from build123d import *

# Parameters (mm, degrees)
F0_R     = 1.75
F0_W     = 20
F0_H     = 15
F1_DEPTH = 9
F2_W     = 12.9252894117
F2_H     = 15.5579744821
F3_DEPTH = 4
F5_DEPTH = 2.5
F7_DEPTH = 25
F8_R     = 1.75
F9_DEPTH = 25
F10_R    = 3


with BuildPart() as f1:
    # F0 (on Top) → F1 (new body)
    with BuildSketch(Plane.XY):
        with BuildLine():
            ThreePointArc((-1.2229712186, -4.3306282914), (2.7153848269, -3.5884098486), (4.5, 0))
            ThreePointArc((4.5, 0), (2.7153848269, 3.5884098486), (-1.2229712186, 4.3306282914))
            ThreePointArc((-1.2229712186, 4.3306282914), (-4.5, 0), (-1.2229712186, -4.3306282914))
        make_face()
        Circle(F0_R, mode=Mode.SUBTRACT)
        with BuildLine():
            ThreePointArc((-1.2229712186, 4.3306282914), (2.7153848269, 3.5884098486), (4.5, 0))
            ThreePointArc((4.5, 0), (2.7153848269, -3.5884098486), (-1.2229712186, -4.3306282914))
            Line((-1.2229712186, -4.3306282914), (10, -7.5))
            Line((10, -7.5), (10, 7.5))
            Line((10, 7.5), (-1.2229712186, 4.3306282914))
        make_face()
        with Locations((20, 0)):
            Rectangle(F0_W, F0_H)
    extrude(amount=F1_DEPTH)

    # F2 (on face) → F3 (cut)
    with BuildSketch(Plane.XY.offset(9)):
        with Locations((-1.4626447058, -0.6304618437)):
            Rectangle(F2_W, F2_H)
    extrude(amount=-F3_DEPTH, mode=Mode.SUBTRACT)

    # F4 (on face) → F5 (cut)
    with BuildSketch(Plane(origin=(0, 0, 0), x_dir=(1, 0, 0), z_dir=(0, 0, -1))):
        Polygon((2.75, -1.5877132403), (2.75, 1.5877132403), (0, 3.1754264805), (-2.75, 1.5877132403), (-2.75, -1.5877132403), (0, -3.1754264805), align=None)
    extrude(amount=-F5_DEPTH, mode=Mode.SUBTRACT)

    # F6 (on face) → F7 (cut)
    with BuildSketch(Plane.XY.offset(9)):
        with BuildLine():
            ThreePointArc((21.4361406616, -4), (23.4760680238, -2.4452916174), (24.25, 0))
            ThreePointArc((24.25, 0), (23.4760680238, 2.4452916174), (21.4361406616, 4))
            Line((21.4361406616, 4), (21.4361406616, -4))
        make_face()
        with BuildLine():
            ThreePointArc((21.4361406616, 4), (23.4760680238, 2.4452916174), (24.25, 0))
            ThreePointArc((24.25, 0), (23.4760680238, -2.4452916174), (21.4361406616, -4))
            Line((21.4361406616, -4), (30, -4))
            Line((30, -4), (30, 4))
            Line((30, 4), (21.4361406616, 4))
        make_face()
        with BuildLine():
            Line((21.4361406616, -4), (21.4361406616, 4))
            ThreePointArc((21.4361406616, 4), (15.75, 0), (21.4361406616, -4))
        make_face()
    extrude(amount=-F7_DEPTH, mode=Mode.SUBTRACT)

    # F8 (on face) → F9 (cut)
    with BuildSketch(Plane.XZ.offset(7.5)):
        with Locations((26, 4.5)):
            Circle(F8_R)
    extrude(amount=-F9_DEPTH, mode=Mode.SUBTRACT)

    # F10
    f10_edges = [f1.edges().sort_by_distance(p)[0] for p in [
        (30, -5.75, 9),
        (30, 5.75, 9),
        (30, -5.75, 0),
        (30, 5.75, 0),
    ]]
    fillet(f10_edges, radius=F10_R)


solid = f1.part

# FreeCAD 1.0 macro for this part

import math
import FreeCAD as App
import Part
import Sketcher
from FreeCAD import Vector
Q = App.Units.Quantity


def edges_at(feature, points):
    """Names of the edges that pass closest to the given points."""
    edges = feature.Shape.Edges
    near = lambda p: min(range(len(edges)), key=lambda i: edges[i].distToShape(Part.Vertex(*p))[0])
    return sorted({f"Edge{near(p) + 1}" for p in points})

doc = App.newDocument("Part")
body = doc.addObject("PartDesign::Body", "Body")

# Sketch on XY plane
sketch1 = body.newObject("Sketcher::SketchObject", "Sketch")
sketch1.AttachmentSupport = (doc.getObject("XY_Plane"), [""])
sketch1.MapMode = "FlatFace"
sketch1.addGeometry([
    Part.ArcOfCircle(Part.Circle(Vector(0, 0, 0), Vector(0, 0, 1), 4.5), math.radians(105.769702), math.radians(254.230298)),  # 0
    Part.LineSegment(Vector(-1.222971, -4.330628, 0), Vector(10, -7.5, 0)),  # 1
    Part.LineSegment(Vector(10, -7.5, 0), Vector(30, -7.5, 0)),  # 2
    Part.LineSegment(Vector(30, -7.5, 0), Vector(30, 7.5, 0)),  # 3
    Part.LineSegment(Vector(30, 7.5, 0), Vector(10, 7.5, 0)),  # 4
    Part.LineSegment(Vector(10, 7.5, 0), Vector(-1.222971, 4.330628, 0)),  # 5
    Part.Circle(Vector(0, 0, 0), Vector(0, 0, 1), 1.75),  # 6
], False)
sketch1.addConstraint([
    Sketcher.Constraint("Tangent", 0, 2, 1, 1),
    Sketcher.Constraint("Coincident", 1, 2, 2, 1),
    Sketcher.Constraint("Coincident", 2, 2, 3, 1),
    Sketcher.Constraint("Coincident", 3, 2, 4, 1),
    Sketcher.Constraint("Coincident", 4, 2, 5, 1),
    Sketcher.Constraint("Tangent", 5, 2, 0, 1),
    Sketcher.Constraint("Horizontal", 2),
    Sketcher.Constraint("Vertical", 3),
    Sketcher.Constraint("Horizontal", 4),
    Sketcher.Constraint("Coincident", 0, 3, -1, 1),
    Sketcher.Constraint("Coincident", 6, 3, -1, 1),
    Sketcher.Constraint("Symmetric", 1, 2, 4, 2, -1),
    Sketcher.Constraint("Diameter", 6, Q("3.5 mm")),
    Sketcher.Constraint("Radius", 0, Q("4.5 mm")),
    Sketcher.Constraint("DistanceX", 2, 1, 2, 2, Q("20 mm")),
    Sketcher.Constraint("DistanceY", 3, 1, 3, 2, Q("15 mm")),
    Sketcher.Constraint("DistanceX", -1, 1, 1, 2, Q("10 mm")),
])
pad1 = body.newObject("PartDesign::Pad", "Pad")
pad1.Profile = sketch1
pad1.Length = 9

# Sketch on XY plane
sketch2 = body.newObject("Sketcher::SketchObject", "Sketch001")
sketch2.AttachmentSupport = (doc.getObject("XY_Plane"), [""])
sketch2.MapMode = "FlatFace"
sketch2.AttachmentOffset = App.Placement(Vector(0, 0, 9), App.Rotation())
sketch2.addGeometry([
    Part.LineSegment(Vector(-7.925289, 7.148525, 0), Vector(-7.925289, -8.409449, 0)),
    Part.LineSegment(Vector(-7.925289, -8.409449, 0), Vector(5, -8.409449, 0)),
    Part.LineSegment(Vector(5, -8.409449, 0), Vector(5, 7.148525, 0)),
    Part.LineSegment(Vector(5, 7.148525, 0), Vector(-7.925289, 7.148525, 0)),
], False)
sketch2.addConstraint([
    Sketcher.Constraint("Coincident", 0, 2, 1, 1),
    Sketcher.Constraint("Coincident", 1, 2, 2, 1),
    Sketcher.Constraint("Coincident", 2, 2, 3, 1),
    Sketcher.Constraint("Coincident", 3, 2, 0, 1),
    Sketcher.Constraint("Vertical", 0),
    Sketcher.Constraint("Horizontal", 1),
    Sketcher.Constraint("Vertical", 2),
    Sketcher.Constraint("Horizontal", 3),
    Sketcher.Constraint("DistanceX", -1, 1, 1, 2, Q("5 mm")),
    Sketcher.Constraint("DistanceX", 1, 1, 1, 2, Q("12.925289 mm")),
    Sketcher.Constraint("DistanceY", 0, 2, 0, 1, Q("15.557974 mm")),
    Sketcher.Constraint("DistanceY", 0, 2, -1, 1, Q("8.409449 mm")),
])
pocket1 = body.newObject("PartDesign::Pocket", "Pocket")
pocket1.Profile = sketch2
pocket1.Length = 4

# Sketch on XY plane
sketch3 = body.newObject("Sketcher::SketchObject", "Sketch002")
sketch3.AttachmentSupport = (doc.getObject("XY_Plane"), [""])
sketch3.MapMode = "FlatFace"
sketch3.addGeometry([
    Part.LineSegment(Vector(2.75, 1.587713, 0), Vector(2.75, -1.587713, 0)),  # 0
    Part.LineSegment(Vector(2.75, -1.587713, 0), Vector(0, -3.175426, 0)),  # 1
    Part.LineSegment(Vector(0, -3.175426, 0), Vector(-2.75, -1.587713, 0)),  # 2
    Part.LineSegment(Vector(-2.75, -1.587713, 0), Vector(-2.75, 1.587713, 0)),  # 3
    Part.LineSegment(Vector(-2.75, 1.587713, 0), Vector(0, 3.175426, 0)),  # 4
    Part.LineSegment(Vector(0, 3.175426, 0), Vector(2.75, 1.587713, 0)),  # 5
], False)
sketch3.addConstraint([
    Sketcher.Constraint("Coincident", 0, 2, 1, 1),
    Sketcher.Constraint("Coincident", 1, 2, 2, 1),
    Sketcher.Constraint("Coincident", 2, 2, 3, 1),
    Sketcher.Constraint("Coincident", 3, 2, 4, 1),
    Sketcher.Constraint("Coincident", 4, 2, 5, 1),
    Sketcher.Constraint("Coincident", 5, 2, 0, 1),
    Sketcher.Constraint("Vertical", 0),
    Sketcher.Constraint("Vertical", 3),
    Sketcher.Constraint("Symmetric", 0, 2, 3, 2, -1, 1),
    Sketcher.Constraint("Symmetric", 1, 2, 4, 2, -1, 1),
    Sketcher.Constraint("PointOnObject", 1, 2, -2),
    Sketcher.Constraint("Parallel", 2, 5),
    Sketcher.Constraint("Horizontal", 0, 2, 2, 2),
    Sketcher.Constraint("Angle", 1, Q("-150 deg")),
    Sketcher.Constraint("DistanceX", 2, 2, 0, 2, Q("5.5 mm")),
    Sketcher.Constraint("DistanceY", 0, 2, 0, 1, Q("3.175426 mm")),
])
pocket2 = body.newObject("PartDesign::Pocket", "Pocket001")
pocket2.Profile = sketch3
pocket2.Length = 2.5
pocket2.Reversed = True

# Sketch on XY plane
sketch4 = body.newObject("Sketcher::SketchObject", "Sketch003")
sketch4.AttachmentSupport = (doc.getObject("XY_Plane"), [""])
sketch4.MapMode = "FlatFace"
sketch4.AttachmentOffset = App.Placement(Vector(0, 0, 9), App.Rotation())
sketch4.addGeometry([
    Part.LineSegment(Vector(21.436141, -4, 0), Vector(30, -4, 0)),
    Part.LineSegment(Vector(30, -4, 0), Vector(30, 4, 0)),
    Part.LineSegment(Vector(30, 4, 0), Vector(21.436141, 4, 0)),
    Part.ArcOfCircle(Part.Circle(Vector(20, 0, 0), Vector(0, 0, 1), 4.25), math.radians(70.250077), math.radians(289.749923)),
], False)
sketch4.addConstraint([
    Sketcher.Constraint("Coincident", 0, 2, 1, 1),
    Sketcher.Constraint("Coincident", 1, 2, 2, 1),
    Sketcher.Constraint("Coincident", 2, 2, 3, 1),
    Sketcher.Constraint("Coincident", 3, 2, 0, 1),
    Sketcher.Constraint("Horizontal", 0),
    Sketcher.Constraint("Vertical", 1),
    Sketcher.Constraint("Horizontal", 2),
    Sketcher.Constraint("Symmetric", 2, 2, 3, 2, -1),
    Sketcher.Constraint("DistanceY", 1, 1, 1, 2, Q("8 mm")),
    Sketcher.Constraint("Radius", 3, Q("4.25 mm")),
    Sketcher.Constraint("DistanceX", -1, 1, 3, 3, Q("20 mm")),
    Sketcher.Constraint("DistanceX", -1, 1, 0, 2, Q("30 mm")),
])
pocket3 = body.newObject("PartDesign::Pocket", "Pocket002")
pocket3.Profile = sketch4
pocket3.Length = 25

# Sketch on XZ plane
sketch5 = body.newObject("Sketcher::SketchObject", "Sketch004")
sketch5.AttachmentSupport = (doc.getObject("XZ_Plane"), [""])
sketch5.MapMode = "FlatFace"
sketch5.AttachmentOffset = App.Placement(Vector(0, 0, 7.5), App.Rotation())
sketch5.addGeometry(Part.Circle(Vector(26, 4.5, 0), Vector(0, 0, 1), 1.75), False)
sketch5.addConstraint([
    Sketcher.Constraint("Diameter", 0, Q("3.5 mm")),
    Sketcher.Constraint("DistanceX", -1, 1, 0, 3, Q("26 mm")),
    Sketcher.Constraint("DistanceY", -1, 1, 0, 3, Q("4.5 mm")),
])
pocket4 = body.newObject("PartDesign::Pocket", "Pocket003")
pocket4.Profile = sketch5
pocket4.Length = 25
doc.recompute()

fillet = body.newObject("PartDesign::Fillet", "Fillet")
fillet.Base = (pocket4, edges_at(pocket4, [
    (30, -5.75, 9),
    (30, 5.75, 9),
    (30, -5.75, 0),
    (30, 5.75, 0),
]))
fillet.Radius = 3

doc.recompute()
